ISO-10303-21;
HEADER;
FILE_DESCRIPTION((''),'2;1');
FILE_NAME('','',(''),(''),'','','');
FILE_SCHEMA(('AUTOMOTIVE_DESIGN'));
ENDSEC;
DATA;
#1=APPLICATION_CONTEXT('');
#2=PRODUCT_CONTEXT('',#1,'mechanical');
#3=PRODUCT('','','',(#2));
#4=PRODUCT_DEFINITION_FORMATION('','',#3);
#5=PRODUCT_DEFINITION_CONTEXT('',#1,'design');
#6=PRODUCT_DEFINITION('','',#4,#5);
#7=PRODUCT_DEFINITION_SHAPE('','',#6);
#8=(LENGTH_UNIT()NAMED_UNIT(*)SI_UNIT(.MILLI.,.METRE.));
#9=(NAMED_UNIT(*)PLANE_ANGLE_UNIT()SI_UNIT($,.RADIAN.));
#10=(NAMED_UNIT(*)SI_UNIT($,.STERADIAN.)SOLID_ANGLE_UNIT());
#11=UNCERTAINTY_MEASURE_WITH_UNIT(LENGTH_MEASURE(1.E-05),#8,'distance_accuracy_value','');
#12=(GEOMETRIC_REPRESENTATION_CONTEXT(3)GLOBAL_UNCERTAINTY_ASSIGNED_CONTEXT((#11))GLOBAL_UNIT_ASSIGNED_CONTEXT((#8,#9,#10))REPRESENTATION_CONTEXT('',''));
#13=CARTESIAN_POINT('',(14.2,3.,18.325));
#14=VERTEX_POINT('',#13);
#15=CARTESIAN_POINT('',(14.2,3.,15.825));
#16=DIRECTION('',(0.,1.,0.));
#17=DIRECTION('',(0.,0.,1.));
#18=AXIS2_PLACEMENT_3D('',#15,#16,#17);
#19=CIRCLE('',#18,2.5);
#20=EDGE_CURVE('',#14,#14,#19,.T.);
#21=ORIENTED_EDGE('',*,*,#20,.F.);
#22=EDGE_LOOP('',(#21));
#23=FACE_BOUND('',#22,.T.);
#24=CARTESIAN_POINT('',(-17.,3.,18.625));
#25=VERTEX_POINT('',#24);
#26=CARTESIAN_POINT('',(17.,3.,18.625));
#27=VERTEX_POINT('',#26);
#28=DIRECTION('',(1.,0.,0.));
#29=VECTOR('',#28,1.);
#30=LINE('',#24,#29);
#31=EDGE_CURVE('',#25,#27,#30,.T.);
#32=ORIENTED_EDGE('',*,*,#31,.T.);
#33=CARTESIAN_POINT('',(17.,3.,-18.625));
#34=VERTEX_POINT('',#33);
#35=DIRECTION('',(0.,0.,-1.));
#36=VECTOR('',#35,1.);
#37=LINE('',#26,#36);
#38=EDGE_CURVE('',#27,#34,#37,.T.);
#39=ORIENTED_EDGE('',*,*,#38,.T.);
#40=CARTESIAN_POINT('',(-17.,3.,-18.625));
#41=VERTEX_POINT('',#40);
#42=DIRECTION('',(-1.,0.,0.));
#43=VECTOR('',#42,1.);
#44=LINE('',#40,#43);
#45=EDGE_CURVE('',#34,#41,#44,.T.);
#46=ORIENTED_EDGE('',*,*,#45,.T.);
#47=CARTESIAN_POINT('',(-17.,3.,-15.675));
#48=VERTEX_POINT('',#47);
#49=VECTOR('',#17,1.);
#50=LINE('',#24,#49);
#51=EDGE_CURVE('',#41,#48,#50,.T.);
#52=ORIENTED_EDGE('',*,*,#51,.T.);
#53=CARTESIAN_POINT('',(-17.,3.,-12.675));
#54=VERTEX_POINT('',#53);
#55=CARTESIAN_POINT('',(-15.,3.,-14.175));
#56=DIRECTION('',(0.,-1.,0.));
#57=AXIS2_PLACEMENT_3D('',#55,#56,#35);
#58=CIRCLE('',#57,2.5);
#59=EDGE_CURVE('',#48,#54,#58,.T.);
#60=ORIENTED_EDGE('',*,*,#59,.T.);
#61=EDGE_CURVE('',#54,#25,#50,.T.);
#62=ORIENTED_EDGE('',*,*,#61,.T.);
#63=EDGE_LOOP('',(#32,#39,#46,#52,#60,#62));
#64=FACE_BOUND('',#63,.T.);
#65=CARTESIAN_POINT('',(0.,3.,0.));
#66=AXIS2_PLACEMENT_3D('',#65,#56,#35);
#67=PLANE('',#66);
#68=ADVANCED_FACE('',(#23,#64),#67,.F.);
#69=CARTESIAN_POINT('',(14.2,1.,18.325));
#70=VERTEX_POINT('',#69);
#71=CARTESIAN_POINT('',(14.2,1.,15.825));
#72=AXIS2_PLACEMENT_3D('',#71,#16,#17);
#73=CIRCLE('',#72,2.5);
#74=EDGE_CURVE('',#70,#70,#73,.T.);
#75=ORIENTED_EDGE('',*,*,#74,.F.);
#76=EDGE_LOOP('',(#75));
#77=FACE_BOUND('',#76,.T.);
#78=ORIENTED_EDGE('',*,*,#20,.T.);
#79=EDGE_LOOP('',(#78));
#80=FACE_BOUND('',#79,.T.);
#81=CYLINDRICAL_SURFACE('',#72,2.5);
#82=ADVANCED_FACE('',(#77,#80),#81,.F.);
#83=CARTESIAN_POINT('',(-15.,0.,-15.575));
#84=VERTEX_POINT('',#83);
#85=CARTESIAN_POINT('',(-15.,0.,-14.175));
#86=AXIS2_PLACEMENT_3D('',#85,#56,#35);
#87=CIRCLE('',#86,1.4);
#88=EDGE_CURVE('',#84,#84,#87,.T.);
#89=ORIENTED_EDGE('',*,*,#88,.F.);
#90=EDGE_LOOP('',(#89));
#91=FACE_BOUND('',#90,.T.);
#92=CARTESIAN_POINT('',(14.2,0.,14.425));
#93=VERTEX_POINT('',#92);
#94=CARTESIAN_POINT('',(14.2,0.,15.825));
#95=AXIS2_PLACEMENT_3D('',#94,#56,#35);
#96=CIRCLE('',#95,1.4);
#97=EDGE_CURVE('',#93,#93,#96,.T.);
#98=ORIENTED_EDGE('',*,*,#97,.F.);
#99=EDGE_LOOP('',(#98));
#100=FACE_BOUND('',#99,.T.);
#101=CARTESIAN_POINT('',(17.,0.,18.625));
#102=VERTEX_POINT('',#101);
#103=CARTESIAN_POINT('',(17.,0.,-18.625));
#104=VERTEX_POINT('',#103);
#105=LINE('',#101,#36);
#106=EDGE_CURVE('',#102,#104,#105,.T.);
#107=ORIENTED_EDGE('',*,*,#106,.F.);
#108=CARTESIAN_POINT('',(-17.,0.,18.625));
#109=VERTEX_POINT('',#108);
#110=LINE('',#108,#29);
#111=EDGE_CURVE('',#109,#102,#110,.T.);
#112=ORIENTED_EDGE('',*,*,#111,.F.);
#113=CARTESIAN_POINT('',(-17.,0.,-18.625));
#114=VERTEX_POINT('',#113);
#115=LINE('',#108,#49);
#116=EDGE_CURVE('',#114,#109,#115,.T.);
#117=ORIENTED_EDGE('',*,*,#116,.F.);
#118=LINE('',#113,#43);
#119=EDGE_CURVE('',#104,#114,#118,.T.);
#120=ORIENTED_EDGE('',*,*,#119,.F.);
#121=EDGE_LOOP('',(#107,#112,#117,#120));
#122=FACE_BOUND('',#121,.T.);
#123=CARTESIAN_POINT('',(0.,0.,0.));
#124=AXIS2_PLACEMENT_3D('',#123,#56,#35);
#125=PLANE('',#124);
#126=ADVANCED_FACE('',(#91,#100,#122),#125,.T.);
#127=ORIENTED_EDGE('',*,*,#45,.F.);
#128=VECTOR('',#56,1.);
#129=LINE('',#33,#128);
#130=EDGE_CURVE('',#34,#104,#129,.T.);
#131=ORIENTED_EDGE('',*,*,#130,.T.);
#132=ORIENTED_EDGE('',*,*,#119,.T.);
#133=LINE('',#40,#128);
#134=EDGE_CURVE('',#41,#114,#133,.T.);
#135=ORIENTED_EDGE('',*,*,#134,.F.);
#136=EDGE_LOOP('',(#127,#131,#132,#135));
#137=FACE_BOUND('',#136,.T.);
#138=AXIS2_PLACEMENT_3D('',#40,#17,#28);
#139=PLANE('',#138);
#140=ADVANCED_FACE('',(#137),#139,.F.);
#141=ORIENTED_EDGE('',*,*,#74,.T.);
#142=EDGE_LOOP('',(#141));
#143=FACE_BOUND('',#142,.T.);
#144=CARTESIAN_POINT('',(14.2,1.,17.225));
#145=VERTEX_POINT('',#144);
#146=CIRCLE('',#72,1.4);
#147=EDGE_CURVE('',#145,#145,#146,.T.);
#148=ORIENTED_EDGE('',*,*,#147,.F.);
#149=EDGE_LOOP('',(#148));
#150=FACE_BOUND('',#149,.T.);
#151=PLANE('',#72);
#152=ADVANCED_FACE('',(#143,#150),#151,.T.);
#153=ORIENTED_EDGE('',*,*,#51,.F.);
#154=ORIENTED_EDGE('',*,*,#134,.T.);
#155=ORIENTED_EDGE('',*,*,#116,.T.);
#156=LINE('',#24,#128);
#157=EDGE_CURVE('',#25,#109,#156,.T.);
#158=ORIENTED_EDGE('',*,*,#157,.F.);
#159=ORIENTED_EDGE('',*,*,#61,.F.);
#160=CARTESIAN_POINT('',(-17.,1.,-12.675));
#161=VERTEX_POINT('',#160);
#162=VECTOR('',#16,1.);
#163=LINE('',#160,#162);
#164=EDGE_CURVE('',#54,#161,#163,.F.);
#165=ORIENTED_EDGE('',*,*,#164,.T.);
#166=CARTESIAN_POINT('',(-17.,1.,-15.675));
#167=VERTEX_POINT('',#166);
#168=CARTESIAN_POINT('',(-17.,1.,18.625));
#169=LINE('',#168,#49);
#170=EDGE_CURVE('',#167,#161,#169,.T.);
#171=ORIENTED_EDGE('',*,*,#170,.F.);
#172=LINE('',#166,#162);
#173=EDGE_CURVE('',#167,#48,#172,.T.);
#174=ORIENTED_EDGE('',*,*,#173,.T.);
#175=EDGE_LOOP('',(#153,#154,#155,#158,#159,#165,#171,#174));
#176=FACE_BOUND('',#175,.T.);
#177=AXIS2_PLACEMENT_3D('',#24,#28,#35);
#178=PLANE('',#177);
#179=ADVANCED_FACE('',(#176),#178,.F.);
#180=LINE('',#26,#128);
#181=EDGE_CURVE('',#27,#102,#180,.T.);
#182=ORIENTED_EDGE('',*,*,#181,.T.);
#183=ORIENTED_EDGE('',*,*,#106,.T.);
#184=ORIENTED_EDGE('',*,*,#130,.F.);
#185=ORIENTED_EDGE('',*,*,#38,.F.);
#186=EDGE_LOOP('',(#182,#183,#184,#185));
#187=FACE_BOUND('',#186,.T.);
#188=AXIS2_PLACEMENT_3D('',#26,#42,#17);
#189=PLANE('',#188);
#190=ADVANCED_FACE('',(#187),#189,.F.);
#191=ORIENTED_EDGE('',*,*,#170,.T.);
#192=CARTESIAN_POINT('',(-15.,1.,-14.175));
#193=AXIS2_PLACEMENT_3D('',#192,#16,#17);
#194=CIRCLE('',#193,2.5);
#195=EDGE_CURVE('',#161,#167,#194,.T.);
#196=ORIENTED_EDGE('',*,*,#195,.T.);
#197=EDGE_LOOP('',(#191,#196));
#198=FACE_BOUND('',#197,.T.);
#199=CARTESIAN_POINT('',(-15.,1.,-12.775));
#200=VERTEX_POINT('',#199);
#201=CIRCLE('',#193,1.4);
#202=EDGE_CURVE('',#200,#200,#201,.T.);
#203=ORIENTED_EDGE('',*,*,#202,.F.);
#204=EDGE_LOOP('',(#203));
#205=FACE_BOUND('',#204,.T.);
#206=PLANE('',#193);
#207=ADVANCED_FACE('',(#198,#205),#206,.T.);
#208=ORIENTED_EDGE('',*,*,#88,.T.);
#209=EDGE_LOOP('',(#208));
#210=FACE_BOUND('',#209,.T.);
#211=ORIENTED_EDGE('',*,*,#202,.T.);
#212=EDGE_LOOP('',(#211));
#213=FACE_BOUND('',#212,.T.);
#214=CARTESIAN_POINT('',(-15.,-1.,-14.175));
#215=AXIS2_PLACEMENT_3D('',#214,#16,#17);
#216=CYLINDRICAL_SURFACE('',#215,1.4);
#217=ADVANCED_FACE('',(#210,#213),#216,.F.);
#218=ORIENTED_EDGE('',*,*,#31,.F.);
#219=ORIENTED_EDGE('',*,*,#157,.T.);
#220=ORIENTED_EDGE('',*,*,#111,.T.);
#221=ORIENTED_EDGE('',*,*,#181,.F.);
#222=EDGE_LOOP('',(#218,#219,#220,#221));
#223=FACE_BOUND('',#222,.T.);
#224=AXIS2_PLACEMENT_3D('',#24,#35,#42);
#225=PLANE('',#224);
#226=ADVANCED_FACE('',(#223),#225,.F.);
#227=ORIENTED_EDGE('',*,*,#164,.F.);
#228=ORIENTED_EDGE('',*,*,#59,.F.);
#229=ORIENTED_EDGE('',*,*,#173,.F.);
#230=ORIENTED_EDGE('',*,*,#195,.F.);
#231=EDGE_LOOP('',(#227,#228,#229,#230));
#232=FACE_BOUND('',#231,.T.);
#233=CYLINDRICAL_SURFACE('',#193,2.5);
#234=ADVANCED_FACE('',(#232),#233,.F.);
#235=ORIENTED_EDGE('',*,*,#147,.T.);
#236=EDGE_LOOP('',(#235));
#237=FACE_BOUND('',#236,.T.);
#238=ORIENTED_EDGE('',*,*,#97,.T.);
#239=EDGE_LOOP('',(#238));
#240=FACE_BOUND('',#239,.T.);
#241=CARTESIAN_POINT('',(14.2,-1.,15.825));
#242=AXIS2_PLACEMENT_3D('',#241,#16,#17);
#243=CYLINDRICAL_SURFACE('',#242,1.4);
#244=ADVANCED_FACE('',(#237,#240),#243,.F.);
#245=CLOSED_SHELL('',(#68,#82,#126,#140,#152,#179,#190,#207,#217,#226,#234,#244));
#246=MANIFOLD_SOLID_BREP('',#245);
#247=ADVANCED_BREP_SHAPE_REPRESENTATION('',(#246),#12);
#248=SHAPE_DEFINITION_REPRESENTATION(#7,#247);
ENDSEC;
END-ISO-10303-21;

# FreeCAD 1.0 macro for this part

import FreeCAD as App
import Part
import Sketcher

V = App.Vector
Q = App.Units.Quantity


def add_polygon(sketch, points):
    """Adds a closed chain of lines whose ends are joined by coincident constraints."""
    first, n = sketch.GeometryCount, len(points)
    for a, b in zip(points, points[1:] + points[:1]):
        sketch.addGeometry(Part.LineSegment(App.Vector(*a, 0), App.Vector(*b, 0)), False)
    for i in range(n):
        sketch.addConstraint(Sketcher.Constraint("Coincident", first + i, 2, first + (i + 1) % n, 1))

doc = App.newDocument("Part")
params = doc.addObject("Spreadsheet::Sheet", "Params")
for row, (alias, value) in enumerate([
    ("sketch1_width", "34 mm"),
    ("sketch1_height", "37.25 mm"),
    ("pad1_length", "3 mm"),
    ("sketch2_diameter", "5 mm"),
    ("pocket1_length", "2 mm"),
    ("sketch3_diameter", "2.8 mm"),
    ("pocket2_length", "2 mm"),
], start=1):
    params.set(f"A{row}", alias)
    params.set(f"B{row}", "=" + value)
    params.setAlias(f"B{row}", alias)

body = doc.addObject("PartDesign::Body", "Body")

# Sketch on XZ plane
sketch1 = doc.addObject("Sketcher::SketchObject", "Sketch")
body.addObject(sketch1)
sketch1.AttachmentSupport = (doc.XZ_Plane, [""])
sketch1.MapMode = "FlatFace"
add_polygon(sketch1, [(-17, -19), (-17, 19), (17, 19), (17, -19)])  # lines 0-3
sketch1.addConstraint([
    Sketcher.Constraint("Vertical", 0),
    Sketcher.Constraint("Horizontal", 1),
    Sketcher.Constraint("Vertical", 2),
    Sketcher.Constraint("Horizontal", 3),
    Sketcher.Constraint("Symmetric", 0, 2, 2, 2, -1, 1),
    Sketcher.Constraint("DistanceX", 1, 1, 1, 2, Q("34 mm")),
    Sketcher.Constraint("DistanceY", 0, 1, 0, 2, Q("37.25 mm")),
])
sketch1.setExpression("Constraints[9]", "Params.sketch1_width")
sketch1.setExpression("Constraints[10]", "Params.sketch1_height")
pad1 = doc.addObject("PartDesign::Pad", "Pad")
body.addObject(pad1)
pad1.Profile = sketch1
pad1.setExpression("Length", "Params.pad1_length")
pad1.Reversed = True

# Sketch on XZ plane
sketch2 = doc.addObject("Sketcher::SketchObject", "Sketch001")
body.addObject(sketch2)
sketch2.AttachmentSupport = (doc.XZ_Plane, [""])
sketch2.MapMode = "FlatFace"
sketch2.AttachmentOffset = App.Placement(V(0, 0, -3), App.Rotation())
sketch2.addGeometry([
    Part.Circle(V(-15, -14.2, 0), V(0, 0, 1), 2.5),
    Part.Circle(V(14.2, 15.8, 0), V(0, 0, 1), 2.5),
], False)
sketch2.addConstraint([
    Sketcher.Constraint("Equal", 0, 1),
    Sketcher.Constraint("Diameter", 0, Q("5 mm")),
    Sketcher.Constraint("DistanceX", 0, 3, -1, 1, Q("15 mm")),
    Sketcher.Constraint("DistanceY", 0, 3, 1, 3, Q("30 mm")),
    Sketcher.Constraint("DistanceX", -1, 1, 1, 3, Q("14.2 mm")),
    Sketcher.Constraint("DistanceY", 0, 3, -1, 1, Q("14.175 mm")),
])
sketch2.setExpression("Constraints[1]", "Params.sketch2_diameter")
pocket1 = doc.addObject("PartDesign::Pocket", "Pocket")
body.addObject(pocket1)
pocket1.Profile = sketch2
pocket1.setExpression("Length", "Params.pocket1_length")
pocket1.Reversed = True

# Sketch on XZ plane
sketch3 = doc.addObject("Sketcher::SketchObject", "Sketch002")
body.addObject(sketch3)
sketch3.AttachmentSupport = (doc.XZ_Plane, [""])
sketch3.MapMode = "FlatFace"
sketch3.AttachmentOffset = App.Placement(V(0, 0, -1), App.Rotation())
sketch3.addGeometry([
    Part.Circle(V(-15, -14.2, 0), V(0, 0, 1), 1.4),
    Part.Circle(V(14.2, 15.8, 0), V(0, 0, 1), 1.4),
], False)
sketch3.addConstraint([
    Sketcher.Constraint("Equal", 0, 1),
    Sketcher.Constraint("Diameter", 0, Q("2.8 mm")),
    Sketcher.Constraint("DistanceX", 0, 3, -1, 1, Q("15 mm")),
    Sketcher.Constraint("DistanceY", 0, 3, 1, 3, Q("30 mm")),
    Sketcher.Constraint("DistanceX", -1, 1, 1, 3, Q("14.2 mm")),
    Sketcher.Constraint("DistanceY", 0, 3, -1, 1, Q("14.175 mm")),
])
sketch3.setExpression("Constraints[1]", "Params.sketch3_diameter")
pocket2 = doc.addObject("PartDesign::Pocket", "Pocket001")
body.addObject(pocket2)
pocket2.Profile = sketch3
pocket2.setExpression("Length", "Params.pocket2_length")
pocket2.Reversed = True

doc.recompute()
